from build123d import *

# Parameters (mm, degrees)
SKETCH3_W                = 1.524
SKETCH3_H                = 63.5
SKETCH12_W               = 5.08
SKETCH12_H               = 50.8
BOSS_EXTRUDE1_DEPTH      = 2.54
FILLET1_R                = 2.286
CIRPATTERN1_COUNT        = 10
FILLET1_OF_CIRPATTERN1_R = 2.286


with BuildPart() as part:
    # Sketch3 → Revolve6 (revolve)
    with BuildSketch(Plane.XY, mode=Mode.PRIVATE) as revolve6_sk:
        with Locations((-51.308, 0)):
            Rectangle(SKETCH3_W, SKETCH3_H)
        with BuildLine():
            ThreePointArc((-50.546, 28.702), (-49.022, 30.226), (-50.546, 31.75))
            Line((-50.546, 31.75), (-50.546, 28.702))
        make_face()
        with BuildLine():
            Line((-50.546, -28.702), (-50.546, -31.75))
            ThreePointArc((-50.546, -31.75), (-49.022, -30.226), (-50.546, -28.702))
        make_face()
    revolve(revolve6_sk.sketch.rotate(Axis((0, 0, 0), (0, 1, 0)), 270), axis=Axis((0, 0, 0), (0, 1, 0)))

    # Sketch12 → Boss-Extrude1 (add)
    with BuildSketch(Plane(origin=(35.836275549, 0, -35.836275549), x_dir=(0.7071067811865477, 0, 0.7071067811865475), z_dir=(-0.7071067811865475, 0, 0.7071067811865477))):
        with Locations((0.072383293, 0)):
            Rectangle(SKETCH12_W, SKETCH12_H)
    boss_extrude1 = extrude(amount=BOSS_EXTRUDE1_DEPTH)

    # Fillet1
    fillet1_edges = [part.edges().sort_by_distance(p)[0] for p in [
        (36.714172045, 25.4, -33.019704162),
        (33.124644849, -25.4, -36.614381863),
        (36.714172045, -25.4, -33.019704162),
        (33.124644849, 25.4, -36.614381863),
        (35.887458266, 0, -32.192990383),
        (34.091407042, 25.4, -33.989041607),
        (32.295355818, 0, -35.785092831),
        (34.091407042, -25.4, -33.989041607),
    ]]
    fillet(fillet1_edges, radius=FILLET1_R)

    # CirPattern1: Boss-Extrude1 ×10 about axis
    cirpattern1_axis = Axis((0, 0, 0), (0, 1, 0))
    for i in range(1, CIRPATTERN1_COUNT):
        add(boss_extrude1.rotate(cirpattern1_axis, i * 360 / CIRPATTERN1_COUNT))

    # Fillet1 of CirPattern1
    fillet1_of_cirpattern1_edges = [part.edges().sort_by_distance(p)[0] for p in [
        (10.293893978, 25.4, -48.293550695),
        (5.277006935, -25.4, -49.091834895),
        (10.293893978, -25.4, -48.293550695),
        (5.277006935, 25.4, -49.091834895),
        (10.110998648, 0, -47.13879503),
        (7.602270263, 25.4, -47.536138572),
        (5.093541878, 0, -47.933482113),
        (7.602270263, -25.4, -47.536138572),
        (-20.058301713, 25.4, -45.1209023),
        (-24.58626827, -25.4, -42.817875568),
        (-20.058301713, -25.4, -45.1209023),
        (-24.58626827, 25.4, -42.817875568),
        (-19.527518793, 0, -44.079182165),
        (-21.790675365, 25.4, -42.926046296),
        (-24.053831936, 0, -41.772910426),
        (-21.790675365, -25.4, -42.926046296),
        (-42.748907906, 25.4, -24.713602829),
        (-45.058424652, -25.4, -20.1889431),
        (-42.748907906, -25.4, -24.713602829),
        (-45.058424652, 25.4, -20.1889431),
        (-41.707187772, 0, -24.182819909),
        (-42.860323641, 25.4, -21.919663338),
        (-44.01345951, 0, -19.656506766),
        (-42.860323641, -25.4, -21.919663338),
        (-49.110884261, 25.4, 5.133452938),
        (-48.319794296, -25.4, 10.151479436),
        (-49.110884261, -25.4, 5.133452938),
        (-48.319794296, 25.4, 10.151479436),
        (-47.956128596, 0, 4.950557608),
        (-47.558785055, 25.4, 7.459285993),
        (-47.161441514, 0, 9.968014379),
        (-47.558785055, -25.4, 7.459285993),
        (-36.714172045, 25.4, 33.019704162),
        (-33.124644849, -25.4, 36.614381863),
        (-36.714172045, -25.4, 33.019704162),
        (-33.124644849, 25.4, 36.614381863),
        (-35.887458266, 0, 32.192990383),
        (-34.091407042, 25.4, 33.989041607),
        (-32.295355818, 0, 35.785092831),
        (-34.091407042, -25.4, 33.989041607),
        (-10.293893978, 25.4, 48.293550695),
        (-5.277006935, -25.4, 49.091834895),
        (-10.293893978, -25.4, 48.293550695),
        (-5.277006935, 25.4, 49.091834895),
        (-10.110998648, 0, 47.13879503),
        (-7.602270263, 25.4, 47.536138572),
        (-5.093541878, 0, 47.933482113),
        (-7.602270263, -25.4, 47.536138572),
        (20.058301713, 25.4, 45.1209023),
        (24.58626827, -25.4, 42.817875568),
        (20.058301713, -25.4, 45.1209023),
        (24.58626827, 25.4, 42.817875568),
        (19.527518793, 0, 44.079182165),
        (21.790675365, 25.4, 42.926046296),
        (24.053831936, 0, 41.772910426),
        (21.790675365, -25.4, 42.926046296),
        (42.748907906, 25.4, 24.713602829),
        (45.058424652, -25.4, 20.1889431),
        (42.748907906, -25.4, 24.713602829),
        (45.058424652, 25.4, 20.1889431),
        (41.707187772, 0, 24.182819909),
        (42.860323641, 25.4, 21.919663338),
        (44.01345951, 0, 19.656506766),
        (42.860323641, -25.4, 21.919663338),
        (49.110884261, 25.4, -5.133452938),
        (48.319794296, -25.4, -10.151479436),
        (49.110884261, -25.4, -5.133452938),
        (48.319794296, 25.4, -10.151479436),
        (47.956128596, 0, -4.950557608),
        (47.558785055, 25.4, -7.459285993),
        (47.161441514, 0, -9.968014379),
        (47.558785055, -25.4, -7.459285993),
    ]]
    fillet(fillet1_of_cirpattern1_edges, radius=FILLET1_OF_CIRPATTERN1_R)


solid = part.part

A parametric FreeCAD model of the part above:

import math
import FreeCAD as App
import Part
import Sketcher
Q = App.Units.Quantity


def edges_at(feature, points):
    """Names of the edges that pass closest to the given points."""
    edges = feature.Shape.Edges
    near = lambda p: min(range(len(edges)), key=lambda i: edges[i].distToShape(Part.Vertex(*p))[0])
    return sorted({f"Edge{near(p) + 1}" for p in points})

doc = App.newDocument("Part")
body = doc.addObject("PartDesign::Body", "Body")

sketch1 = body.newObject("Sketcher::SketchObject", "Sketch")
sketch1.AttachmentSupport = (doc.getObject("XY_Plane"), [""])
sketch1.MapMode = "FlatFace"
sketch1.addGeometry(Part.LineSegment(App.Vector(-52.1, 31.8, 0), App.Vector(-52.1, -31.8, 0)), False)
sketch1.addGeometry(Part.LineSegment(App.Vector(-52.1, -31.8, 0), App.Vector(-50.5, -31.8, 0)), False)
sketch1.addGeometry(Part.ArcOfCircle(Part.Circle(App.Vector(-50.5, -30.2, 0), App.Vector(0, 0, 1), 1.5), math.radians(-90), math.radians(90)), False)
sketch1.addGeometry(Part.LineSegment(App.Vector(-50.5, -28.7, 0), App.Vector(-50.5, 28.7, 0)), False)
sketch1.addGeometry(Part.ArcOfCircle(Part.Circle(App.Vector(-50.5, 30.2, 0), App.Vector(0, 0, 1), 1.5), math.radians(-90), math.radians(90)), False)
sketch1.addGeometry(Part.LineSegment(App.Vector(-50.5, 31.8, 0), App.Vector(-52.1, 31.8, 0)), False)
sketch1.addConstraint(Sketcher.Constraint("Coincident", 0, 2, 1, 1))
sketch1.addConstraint(Sketcher.Constraint("Tangent", 1, 2, 2, 1))
sketch1.addConstraint(Sketcher.Constraint("Coincident", 2, 2, 3, 1))
sketch1.addConstraint(Sketcher.Constraint("Coincident", 3, 2, 4, 1))
sketch1.addConstraint(Sketcher.Constraint("Tangent", 4, 2, 5, 1))
sketch1.addConstraint(Sketcher.Constraint("Coincident", 5, 2, 0, 1))
sketch1.addConstraint(Sketcher.Constraint("Vertical", 0))
sketch1.addConstraint(Sketcher.Constraint("Horizontal", 1))
sketch1.addConstraint(Sketcher.Constraint("Vertical", 3))
sketch1.addConstraint(Sketcher.Constraint("Horizontal", 5))
sketch1.addConstraint(Sketcher.Constraint("Equal", 2, 4))
sketch1.addConstraint(Sketcher.Constraint("Symmetric", 2, 3, 4, 3, -1))
sketch1.addConstraint(Sketcher.Constraint("Vertical", 1, 2, 2, 2))
sketch1.addConstraint(Sketcher.Constraint("Radius", 2, Q("0.06 in")))
sketch1.addConstraint(Sketcher.Constraint("DistanceY", 0, 2, 0, 1, Q("2.5 in")))
sketch1.addConstraint(Sketcher.Constraint("DistanceX", 1, 1, 1, 2, Q("0.06 in")))
sketch1.addConstraint(Sketcher.Constraint("DistanceX", 2, 3, -1, 1, Q("1.99 in")))
revolution = body.newObject("PartDesign::Revolution", "Revolution")
revolution.Profile = sketch1
revolution.ReferenceAxis = (sketch1, ["V_Axis"])
revolution.Angle = 360

sketch2 = body.newObject("Sketcher::SketchObject", "Sketch001")
sketch2.Placement = App.Placement(App.Vector(35.836276, 0, -35.836276), App.Rotation(App.Vector(0.707106781, 0, 0.707106781), App.Vector(0, 0.999999999, 0), App.Vector(-0.707106781, 0, 0.707106781), "ZXY"))
sketch2.addGeometry(Part.LineSegment(App.Vector(-2, 25, 0), App.Vector(-2, -25, 0)), False)
sketch2.addGeometry(Part.LineSegment(App.Vector(-2, -25, 0), App.Vector(3, -25, 0)), False)
sketch2.addGeometry(Part.LineSegment(App.Vector(3, -25, 0), App.Vector(3, 25, 0)), False)
sketch2.addGeometry(Part.LineSegment(App.Vector(3, 25, 0), App.Vector(-2, 25, 0)), False)
sketch2.addConstraint(Sketcher.Constraint("Coincident", 0, 2, 1, 1))
sketch2.addConstraint(Sketcher.Constraint("Coincident", 1, 2, 2, 1))
sketch2.addConstraint(Sketcher.Constraint("Coincident", 2, 2, 3, 1))
sketch2.addConstraint(Sketcher.Constraint("Coincident", 3, 2, 0, 1))
sketch2.addConstraint(Sketcher.Constraint("Vertical", 0))
sketch2.addConstraint(Sketcher.Constraint("Horizontal", 1))
sketch2.addConstraint(Sketcher.Constraint("Vertical", 2))
sketch2.addConstraint(Sketcher.Constraint("Horizontal", 3))
sketch2.addConstraint(Sketcher.Constraint("DistanceY", 0, 2, 0, 1, Q("2 in")))
sketch2.addConstraint(Sketcher.Constraint("DistanceX", 1, 1, 1, 2, Q("0.2 in")))
sketch2.addConstraint(Sketcher.Constraint("DistanceY", 0, 2, -1, 1, Q("1 in")))
sketch2.addConstraint(Sketcher.Constraint("DistanceX", 0, 2, -1, 1, Q("2.467617 mm")))
pad1 = body.newObject("PartDesign::Pad", "Pad")
pad1.Profile = sketch2
pad1.Length = Q("0.1 in")
doc.recompute()

fillet = body.newObject("PartDesign::Fillet", "Fillet")
fillet.Base = (pad1, edges_at(pad1, [
    (36.714, 25.4, -33.02),
    (33.125, -25.4, -36.614),
    (36.714, -25.4, -33.02),
    (33.125, 25.4, -36.614),
    (35.887, 0, -32.193),
    (34.091, 25.4, -33.989),
    (32.295, 0, -35.785),
    (34.091, -25.4, -33.989),
]))
fillet.Radius = Q("0.09 in")
doc.recompute()

polarpattern = body.newObject("PartDesign::PolarPattern", "PolarPattern")
polarpattern.Originals = [pad1]
polarpattern.Axis = (doc.getObject("Y_Axis"), [""])
polarpattern.Angle = 360
polarpattern.Occurrences = 10
body.Tip = polarpattern
doc.recompute()

fillet2 = body.newObject("PartDesign::Fillet", "Fillet001")
fillet2.Base = (polarpattern, edges_at(polarpattern, [
    (10.294, 25.4, -48.294),
    (5.277, -25.4, -49.092),
    (10.294, -25.4, -48.294),
    (5.277, 25.4, -49.092),
    (10.111, 0, -47.139),
    (7.602, 25.4, -47.536),
    (5.094, 0, -47.933),
    (7.602, -25.4, -47.536),
    (-20.058, 25.4, -45.121),
    (-24.586, -25.4, -42.818),
    (-20.058, -25.4, -45.121),
    (-24.586, 25.4, -42.818),
    (-19.528, 0, -44.079),
    (-21.791, 25.4, -42.926),
    (-24.054, 0, -41.773),
    (-21.791, -25.4, -42.926),
    (-42.749, 25.4, -24.714),
    (-45.058, -25.4, -20.189),
    (-42.749, -25.4, -24.714),
    (-45.058, 25.4, -20.189),
    (-41.707, 0, -24.183),
    (-42.86, 25.4, -21.92),
    (-44.013, 0, -19.657),
    (-42.86, -25.4, -21.92),
    (-49.111, 25.4, 5.133),
    (-48.32, -25.4, 10.151),
    (-49.111, -25.4, 5.133),
    (-48.32, 25.4, 10.151),
    (-47.956, 0, 4.951),
    (-47.559, 25.4, 7.459),
    (-47.161, 0, 9.968),
    (-47.559, -25.4, 7.459),
    (-36.714, 25.4, 33.02),
    (-33.125, -25.4, 36.614),
    (-36.714, -25.4, 33.02),
    (-33.125, 25.4, 36.614),
    (-35.887, 0, 32.193),
    (-34.091, 25.4, 33.989),
    (-32.295, 0, 35.785),
    (-34.091, -25.4, 33.989),
    (-10.294, 25.4, 48.294),
    (-5.277, -25.4, 49.092),
    (-10.294, -25.4, 48.294),
    (-5.277, 25.4, 49.092),
    (-10.111, 0, 47.139),
    (-7.602, 25.4, 47.536),
    (-5.094, 0, 47.933),
    (-7.602, -25.4, 47.536),
    (20.058, 25.4, 45.121),
    (24.586, -25.4, 42.818),
    (20.058, -25.4, 45.121),
    (24.586, 25.4, 42.818),
    (19.528, 0, 44.079),
    (21.791, 25.4, 42.926),
    (24.054, 0, 41.773),
    (21.791, -25.4, 42.926),
    (42.749, 25.4, 24.714),
    (45.058, -25.4, 20.189),
    (42.749, -25.4, 24.714),
    (45.058, 25.4, 20.189),
    (41.707, 0, 24.183),
    (42.86, 25.4, 21.92),
    (44.013, 0, 19.657),
    (42.86, -25.4, 21.92),
    (49.111, 25.4, -5.133),
    (48.32, -25.4, -10.151),
    (49.111, -25.4, -5.133),
    (48.32, 25.4, -10.151),
    (47.956, 0, -4.951),
    (47.559, 25.4, -7.459),
    (47.161, 0, -9.968),
    (47.559, -25.4, -7.459),
]))
fillet2.Radius = Q("0.09 in")

doc.recompute()
